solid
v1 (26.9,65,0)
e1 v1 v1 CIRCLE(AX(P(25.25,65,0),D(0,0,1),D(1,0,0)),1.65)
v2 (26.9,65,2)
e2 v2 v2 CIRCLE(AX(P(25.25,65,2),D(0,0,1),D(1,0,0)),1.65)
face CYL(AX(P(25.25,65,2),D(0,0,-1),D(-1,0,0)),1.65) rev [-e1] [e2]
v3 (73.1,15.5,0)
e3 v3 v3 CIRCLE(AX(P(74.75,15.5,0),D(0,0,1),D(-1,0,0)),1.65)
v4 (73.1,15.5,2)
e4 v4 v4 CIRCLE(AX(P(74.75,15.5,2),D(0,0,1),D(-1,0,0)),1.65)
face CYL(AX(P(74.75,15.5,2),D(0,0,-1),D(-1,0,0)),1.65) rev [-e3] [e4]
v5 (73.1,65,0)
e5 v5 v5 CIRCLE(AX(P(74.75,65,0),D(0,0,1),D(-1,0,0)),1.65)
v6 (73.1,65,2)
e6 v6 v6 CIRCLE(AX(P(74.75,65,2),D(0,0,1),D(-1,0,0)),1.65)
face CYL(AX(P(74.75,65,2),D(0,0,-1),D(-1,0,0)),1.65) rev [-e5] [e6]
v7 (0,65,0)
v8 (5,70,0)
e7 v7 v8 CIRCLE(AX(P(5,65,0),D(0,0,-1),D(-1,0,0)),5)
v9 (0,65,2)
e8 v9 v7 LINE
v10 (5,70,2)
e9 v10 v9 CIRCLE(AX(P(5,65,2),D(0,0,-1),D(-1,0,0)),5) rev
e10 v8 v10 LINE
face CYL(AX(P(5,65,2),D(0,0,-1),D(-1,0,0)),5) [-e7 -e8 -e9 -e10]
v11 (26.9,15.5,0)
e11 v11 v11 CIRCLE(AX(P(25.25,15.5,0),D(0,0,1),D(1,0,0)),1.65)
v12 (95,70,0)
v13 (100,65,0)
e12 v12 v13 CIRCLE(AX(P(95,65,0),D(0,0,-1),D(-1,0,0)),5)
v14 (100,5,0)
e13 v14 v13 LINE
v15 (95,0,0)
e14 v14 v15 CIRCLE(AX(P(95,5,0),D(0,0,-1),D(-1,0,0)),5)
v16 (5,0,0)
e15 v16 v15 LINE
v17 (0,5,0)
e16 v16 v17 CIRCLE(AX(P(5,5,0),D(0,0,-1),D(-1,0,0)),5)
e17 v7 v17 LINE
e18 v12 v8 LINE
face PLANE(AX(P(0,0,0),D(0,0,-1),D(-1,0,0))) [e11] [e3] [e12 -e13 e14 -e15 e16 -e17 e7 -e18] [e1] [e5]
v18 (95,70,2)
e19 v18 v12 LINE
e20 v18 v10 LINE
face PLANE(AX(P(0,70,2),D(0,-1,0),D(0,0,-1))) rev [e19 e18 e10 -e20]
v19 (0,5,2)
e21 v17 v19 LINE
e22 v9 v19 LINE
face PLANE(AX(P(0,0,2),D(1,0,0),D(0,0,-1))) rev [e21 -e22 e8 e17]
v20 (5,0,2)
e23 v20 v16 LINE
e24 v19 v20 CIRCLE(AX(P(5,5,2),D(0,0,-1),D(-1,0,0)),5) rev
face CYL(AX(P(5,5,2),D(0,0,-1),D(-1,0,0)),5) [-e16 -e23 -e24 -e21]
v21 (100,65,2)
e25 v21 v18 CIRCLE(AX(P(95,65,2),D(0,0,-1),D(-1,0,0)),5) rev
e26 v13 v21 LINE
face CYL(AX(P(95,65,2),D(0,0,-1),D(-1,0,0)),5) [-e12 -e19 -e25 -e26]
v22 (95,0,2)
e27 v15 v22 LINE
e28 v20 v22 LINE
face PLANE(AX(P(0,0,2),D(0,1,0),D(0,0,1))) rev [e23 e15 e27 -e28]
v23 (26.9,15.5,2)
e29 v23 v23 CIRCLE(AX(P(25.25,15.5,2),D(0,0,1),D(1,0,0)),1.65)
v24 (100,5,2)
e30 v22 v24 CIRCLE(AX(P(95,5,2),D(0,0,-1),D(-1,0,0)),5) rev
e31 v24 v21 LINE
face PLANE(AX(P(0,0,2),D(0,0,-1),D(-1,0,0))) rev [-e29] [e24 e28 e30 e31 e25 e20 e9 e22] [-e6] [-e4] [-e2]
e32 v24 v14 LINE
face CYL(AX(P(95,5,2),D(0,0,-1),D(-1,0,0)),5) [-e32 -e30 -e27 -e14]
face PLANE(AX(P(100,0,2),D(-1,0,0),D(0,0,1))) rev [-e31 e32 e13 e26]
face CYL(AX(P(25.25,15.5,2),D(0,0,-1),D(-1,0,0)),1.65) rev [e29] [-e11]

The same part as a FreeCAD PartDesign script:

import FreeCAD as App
import Part
import Sketcher


def edges_at(feature, points):
    """Names of the edges that pass closest to the given points."""
    edges = feature.Shape.Edges
    near = lambda p: min(range(len(edges)), key=lambda i: edges[i].distToShape(Part.Vertex(*p))[0])
    return sorted({f"Edge{near(p) + 1}" for p in points})


def add_polygon(sketch, points):
    """Adds a closed chain of lines whose ends are joined by coincident constraints."""
    first, n = sketch.GeometryCount, len(points)
    for a, b in zip(points, points[1:] + points[:1]):
        sketch.addGeometry(Part.LineSegment(App.Vector(*a, 0), App.Vector(*b, 0)), False)
    for i in range(n):
        sketch.addConstraint(Sketcher.Constraint("Coincident", first + i, 2, first + (i + 1) % n, 1))

doc = App.newDocument("Part")
body = doc.addObject("PartDesign::Body", "Body")

sketch1 = body.newObject("Sketcher::SketchObject", "Sketch")
sketch1.AttachmentSupport = (doc.getObject("XY_Plane"), [""])
sketch1.MapMode = "FlatFace"
add_polygon(sketch1, [(0, 70), (0, 0), (100, 0), (100, 70)])
sketch1.addGeometry(Part.Circle(App.Vector(25.2, 15.5, 0), App.Vector(0, 0, 1), 1.6), False)
sketch1.addGeometry(Part.Circle(App.Vector(74.8, 15.5, 0), App.Vector(0, 0, 1), 1.6), False)
sketch1.addGeometry(Part.Circle(App.Vector(25.2, 65, 0), App.Vector(0, 0, 1), 1.6), False)
sketch1.addGeometry(Part.Circle(App.Vector(74.8, 65, 0), App.Vector(0, 0, 1), 1.6), False)
sketch1.addConstraint([
    Sketcher.Constraint("Vertical", 0),
    Sketcher.Constraint("Horizontal", 1),
    Sketcher.Constraint("Vertical", 2),
    Sketcher.Constraint("Horizontal", 3),
    Sketcher.Constraint("Coincident", 0, 2, -1, 1),
    Sketcher.Constraint("Equal", 4, 5),
    Sketcher.Constraint("Equal", 5, 6),
    Sketcher.Constraint("Equal", 6, 7),
    Sketcher.Constraint("Horizontal", 4, 3, 5, 3),
    Sketcher.Constraint("Horizontal", 6, 3, 7, 3),
    Sketcher.Constraint("Vertical", 4, 3, 6, 3),
    Sketcher.Constraint("Vertical", 5, 3, 7, 3),
    Sketcher.Constraint("Diameter", 4, 3.3),
    Sketcher.Constraint("DistanceX", 1, 1, 1, 2, 100.0),
    Sketcher.Constraint("DistanceY", 0, 2, 0, 1, 70.0),
    Sketcher.Constraint("DistanceY", -1, 1, 6, 3, 65.0),
    Sketcher.Constraint("DistanceY", -1, 1, 4, 3, 15.5),
    Sketcher.Constraint("DistanceX", 4, 3, 5, 3, 49.5),
    Sketcher.Constraint("DistanceX", -1, 1, 4, 3, 25.25),
])
pad1 = body.newObject("PartDesign::Pad", "Pad")
pad1.Profile = sketch1
pad1.Length = 2
doc.recompute()

fillet = body.newObject("PartDesign::Fillet", "Fillet")
fillet.Base = (pad1, edges_at(pad1, [
    (0, 70, 1),
    (100, 70, 1),
    (100, 0, 1),
    (0, 0, 1),
]))
fillet.Radius = 5

doc.recompute()
